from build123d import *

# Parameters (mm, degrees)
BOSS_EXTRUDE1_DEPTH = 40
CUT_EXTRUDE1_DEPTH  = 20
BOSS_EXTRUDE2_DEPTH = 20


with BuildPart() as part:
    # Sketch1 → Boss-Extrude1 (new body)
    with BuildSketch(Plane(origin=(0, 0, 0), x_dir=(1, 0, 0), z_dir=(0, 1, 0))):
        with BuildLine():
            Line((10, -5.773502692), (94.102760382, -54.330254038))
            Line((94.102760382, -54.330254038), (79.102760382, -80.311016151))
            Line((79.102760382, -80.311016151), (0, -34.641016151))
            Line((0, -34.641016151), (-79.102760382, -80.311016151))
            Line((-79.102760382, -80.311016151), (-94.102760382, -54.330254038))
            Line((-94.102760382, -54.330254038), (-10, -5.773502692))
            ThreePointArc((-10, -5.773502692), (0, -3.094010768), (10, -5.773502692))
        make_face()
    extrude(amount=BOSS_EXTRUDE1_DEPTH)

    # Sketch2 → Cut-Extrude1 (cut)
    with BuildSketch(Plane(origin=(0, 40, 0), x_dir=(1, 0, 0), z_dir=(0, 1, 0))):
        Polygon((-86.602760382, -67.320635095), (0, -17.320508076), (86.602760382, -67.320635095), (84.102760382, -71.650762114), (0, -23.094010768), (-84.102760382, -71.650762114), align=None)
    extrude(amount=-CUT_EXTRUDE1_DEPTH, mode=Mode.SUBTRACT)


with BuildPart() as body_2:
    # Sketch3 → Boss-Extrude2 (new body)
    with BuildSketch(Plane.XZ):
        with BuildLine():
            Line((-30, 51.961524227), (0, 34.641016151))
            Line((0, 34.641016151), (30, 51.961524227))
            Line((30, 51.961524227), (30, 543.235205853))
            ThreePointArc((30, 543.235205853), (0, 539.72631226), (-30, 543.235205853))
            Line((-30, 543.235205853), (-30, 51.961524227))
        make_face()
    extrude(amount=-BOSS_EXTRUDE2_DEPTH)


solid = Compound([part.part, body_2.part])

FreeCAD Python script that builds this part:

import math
import FreeCAD as App
import Part
import Sketcher

V = App.Vector
Q = App.Units.Quantity

doc = App.newDocument("Part")
body = doc.addObject("PartDesign::Body", "Body")

# Sketch on XZ plane
sketch1 = body.newObject("Sketcher::SketchObject", "Sketch")
sketch1.AttachmentSupport = (doc.getObject("XZ_Plane"), [""])
sketch1.MapMode = "FlatFace"
sketch1.addGeometry([
    Part.LineSegment(V(94, 54, 0), V(10, 6, 0)),  # 0
    Part.ArcOfCircle(Part.Circle(V(0, 23, 0), V(0, 0, 1), 20), math.radians(-120), math.radians(-60)),  # 1
    Part.LineSegment(V(-10, 6, 0), V(-94, 54, 0)),  # 2
    Part.LineSegment(V(-94, 54, 0), V(-79, 80, 0)),  # 3
    Part.LineSegment(V(-79, 80, 0), V(0, 35, 0)),  # 4
    Part.LineSegment(V(0, 35, 0), V(79, 80, 0)),  # 5
    Part.LineSegment(V(79, 80, 0), V(94, 54, 0)),  # 6
], False)
sketch1.addConstraint([
    Sketcher.Constraint("Tangent", 0, 2, 1, 2),
    Sketcher.Constraint("Tangent", 1, 1, 2, 1),
    Sketcher.Constraint("Coincident", 2, 2, 3, 1),
    Sketcher.Constraint("Coincident", 3, 2, 4, 1),
    Sketcher.Constraint("Coincident", 4, 2, 5, 1),
    Sketcher.Constraint("Coincident", 5, 2, 6, 1),
    Sketcher.Constraint("Coincident", 6, 2, 0, 1),
    Sketcher.Constraint("Symmetric", 0, 2, 1, 1, -2),
    Sketcher.Constraint("Symmetric", 3, 2, 5, 2, -2),
    Sketcher.Constraint("PointOnObject", 4, 2, -2),
    Sketcher.Constraint("Perpendicular", 2, 3),
    Sketcher.Constraint("Perpendicular", 3, 4),
    Sketcher.Constraint("Perpendicular", 5, 6),
    Sketcher.Constraint("Radius", 1, Q("20 mm")),
    Sketcher.Constraint("Angle", 0, Q("-150 deg")),
    Sketcher.Constraint("Distance", 3, Q("30 mm")),
    Sketcher.Constraint("Distance", 4, Q("91.34 mm")),
    Sketcher.Constraint("DistanceY", -1, 1, 1, 3, Q("23.094011 mm")),
])
pad1 = body.newObject("PartDesign::Pad", "Pad")
pad1.Profile = sketch1
pad1.Length = 40
pad1.Reversed = True

# Sketch on XZ plane
sketch2 = body.newObject("Sketcher::SketchObject", "Sketch001")
sketch2.AttachmentSupport = (doc.getObject("XZ_Plane"), [""])
sketch2.MapMode = "FlatFace"
sketch2.AttachmentOffset = App.Placement(V(0, 0, -40), App.Rotation())
sketch2.addGeometry([
    Part.LineSegment(V(0, 17, 0), V(-87, 67, 0)),  # 0
    Part.LineSegment(V(-87, 67, 0), V(-84, 72, 0)),  # 1
    Part.LineSegment(V(-84, 72, 0), V(0, 23, 0)),  # 2
    Part.LineSegment(V(0, 23, 0), V(84, 72, 0)),  # 3
    Part.LineSegment(V(84, 72, 0), V(87, 67, 0)),  # 4
    Part.LineSegment(V(87, 67, 0), V(0, 17, 0)),  # 5
], False)
sketch2.addConstraint([
    Sketcher.Constraint("Coincident", 0, 2, 1, 1),
    Sketcher.Constraint("Coincident", 1, 2, 2, 1),
    Sketcher.Constraint("Coincident", 2, 2, 3, 1),
    Sketcher.Constraint("Coincident", 3, 2, 4, 1),
    Sketcher.Constraint("Coincident", 4, 2, 5, 1),
    Sketcher.Constraint("Coincident", 5, 2, 0, 1),
    Sketcher.Constraint("Symmetric", 1, 2, 3, 2, -2),
    Sketcher.Constraint("Symmetric", 0, 2, 4, 2, -2),
    Sketcher.Constraint("PointOnObject", 2, 2, -2),
    Sketcher.Constraint("PointOnObject", 5, 2, -2),
    Sketcher.Constraint("Perpendicular", 0, 1),
    Sketcher.Constraint("Perpendicular", 1, 2),
    Sketcher.Constraint("Angle", 0, Q("150 deg")),
    Sketcher.Constraint("Distance", 1, Q("5 mm")),
    Sketcher.Constraint("DistanceX", 0, 2, -1, 1, Q("86.60276 mm")),
    Sketcher.Constraint("DistanceY", -1, 1, 2, 2, Q("23.094011 mm")),
])
pocket1 = body.newObject("PartDesign::Pocket", "Pocket")
pocket1.Profile = sketch2
pocket1.Length = 20
pocket1.Reversed = True
body2 = doc.addObject("PartDesign::Body", "Body001")

# Sketch on XZ plane
sketch3 = body2.newObject("Sketcher::SketchObject", "Sketch002")
sketch3.AttachmentSupport = (doc.getObject("XZ_Plane001"), [""])
sketch3.MapMode = "FlatFace"
sketch3.addGeometry([
    Part.LineSegment(V(-30, 52, 0), V(0, 35, 0)),  # 0
    Part.LineSegment(V(0, 35, 0), V(30, 52, 0)),  # 1
    Part.LineSegment(V(30, 52, 0), V(30, 543, 0)),  # 2
    Part.ArcOfCircle(Part.Circle(V(0, 670, 0), V(0, 0, 1), 130), math.radians(-103), math.radians(-77)),  # 3
    Part.LineSegment(V(-30, 543, 0), V(-30, 52, 0)),  # 4
], False)
sketch3.addConstraint([
    Sketcher.Constraint("Coincident", 0, 2, 1, 1),
    Sketcher.Constraint("Coincident", 1, 2, 2, 1),
    Sketcher.Constraint("Coincident", 2, 2, 3, 2),
    Sketcher.Constraint("Coincident", 3, 1, 4, 1),
    Sketcher.Constraint("Coincident", 4, 2, 0, 1),
    Sketcher.Constraint("Vertical", 2),
    Sketcher.Constraint("Vertical", 4),
    Sketcher.Constraint("Symmetric", 2, 2, 3, 1, -2),
    Sketcher.Constraint("PointOnObject", 0, 2, -2),
    Sketcher.Constraint("Horizontal", 1, 2, 4, 2),
    Sketcher.Constraint("Radius", 3, Q("130 mm")),
    Sketcher.Constraint("Angle", 0, Q("-30 deg")),
    Sketcher.Constraint("DistanceX", -1, 1, 1, 2, Q("30 mm")),
    Sketcher.Constraint("DistanceY", 2, 1, 2, 2, Q("491.273682 mm")),
    Sketcher.Constraint("DistanceY", -1, 1, 3, 3, Q("669.726312 mm")),
])
pad2 = body2.newObject("PartDesign::Pad", "Pad001")
pad2.Profile = sketch3
pad2.Length = 20
pad2.Reversed = True

doc.recompute()
